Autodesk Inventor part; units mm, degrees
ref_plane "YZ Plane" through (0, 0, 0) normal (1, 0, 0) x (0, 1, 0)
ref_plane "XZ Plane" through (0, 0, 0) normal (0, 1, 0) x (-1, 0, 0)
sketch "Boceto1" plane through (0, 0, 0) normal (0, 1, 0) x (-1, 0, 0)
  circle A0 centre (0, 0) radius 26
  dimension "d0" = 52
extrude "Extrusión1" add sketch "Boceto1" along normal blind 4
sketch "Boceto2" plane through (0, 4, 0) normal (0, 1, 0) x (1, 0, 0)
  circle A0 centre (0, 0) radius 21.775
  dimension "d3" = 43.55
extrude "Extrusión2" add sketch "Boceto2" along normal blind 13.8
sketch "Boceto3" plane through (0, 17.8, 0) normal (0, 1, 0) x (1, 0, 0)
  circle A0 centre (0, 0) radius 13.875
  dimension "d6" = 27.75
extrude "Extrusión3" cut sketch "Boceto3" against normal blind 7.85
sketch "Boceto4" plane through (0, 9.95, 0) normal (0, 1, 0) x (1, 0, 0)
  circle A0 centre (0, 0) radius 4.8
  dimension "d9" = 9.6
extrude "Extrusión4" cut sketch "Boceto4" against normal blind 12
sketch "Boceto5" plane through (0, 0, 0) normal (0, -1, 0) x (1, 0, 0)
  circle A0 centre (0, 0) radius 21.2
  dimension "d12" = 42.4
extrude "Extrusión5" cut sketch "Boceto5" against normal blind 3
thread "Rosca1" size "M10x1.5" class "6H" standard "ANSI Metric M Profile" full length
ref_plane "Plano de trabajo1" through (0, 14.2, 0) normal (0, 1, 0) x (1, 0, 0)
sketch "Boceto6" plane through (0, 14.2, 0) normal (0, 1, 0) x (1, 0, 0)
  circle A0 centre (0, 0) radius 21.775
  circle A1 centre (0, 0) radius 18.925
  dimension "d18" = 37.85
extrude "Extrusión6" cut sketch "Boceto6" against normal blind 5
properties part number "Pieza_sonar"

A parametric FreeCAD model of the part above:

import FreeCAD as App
import Part
import Sketcher

V = App.Vector

doc = App.newDocument("Part")
body = doc.addObject("PartDesign::Body", "Body")

# Sketch on XZ plane
sketch1 = body.newObject("Sketcher::SketchObject", "Sketch")
sketch1.AttachmentSupport = (doc.getObject("XZ_Plane"), [""])
sketch1.MapMode = "FlatFace"
sketch1.addGeometry(Part.Circle(V(0, 0, 0), V(0, 0, 1), 26), False)
sketch1.addConstraint([
    Sketcher.Constraint("Coincident", 0, 3, -1, 1),
    Sketcher.Constraint("Diameter", 0, 52.0),
])
pad1 = body.newObject("PartDesign::Pad", "Pad")
pad1.Profile = sketch1
pad1.Length = 4
pad1.Reversed = True

# Sketch on XZ plane
sketch2 = body.newObject("Sketcher::SketchObject", "Sketch001")
sketch2.AttachmentSupport = (doc.getObject("XZ_Plane"), [""])
sketch2.MapMode = "FlatFace"
sketch2.AttachmentOffset = App.Placement(V(0, 0, -4), App.Rotation())
sketch2.addGeometry(Part.Circle(V(0, 0, 0), V(0, 0, 1), 22), False)
sketch2.addConstraint([
    Sketcher.Constraint("Coincident", 0, 3, -1, 1),
    Sketcher.Constraint("Diameter", 0, 43.55),
])
pad2 = body.newObject("PartDesign::Pad", "Pad001")
pad2.Profile = sketch2
pad2.Length = 13.8
pad2.Reversed = True

# Sketch on XZ plane
sketch3 = body.newObject("Sketcher::SketchObject", "Sketch002")
sketch3.AttachmentSupport = (doc.getObject("XZ_Plane"), [""])
sketch3.MapMode = "FlatFace"
sketch3.AttachmentOffset = App.Placement(V(0, 0, -17.8), App.Rotation())
sketch3.addGeometry(Part.Circle(V(0, 0, 0), V(0, 0, 1), 14), False)
sketch3.addConstraint([
    Sketcher.Constraint("Coincident", 0, 3, -1, 1),
    Sketcher.Constraint("Diameter", 0, 27.75),
])
pocket1 = body.newObject("PartDesign::Pocket", "Pocket")
pocket1.Profile = sketch3
pocket1.Length = 7.85
pocket1.Reversed = True

# Sketch on XZ plane
sketch4 = body.newObject("Sketcher::SketchObject", "Sketch003")
sketch4.AttachmentSupport = (doc.getObject("XZ_Plane"), [""])
sketch4.MapMode = "FlatFace"
sketch4.AttachmentOffset = App.Placement(V(0, 0, -9.95), App.Rotation())
sketch4.addGeometry(Part.Circle(V(0, 0, 0), V(0, 0, 1), 4.8), False)
sketch4.addConstraint([
    Sketcher.Constraint("Coincident", 0, 3, -1, 1),
    Sketcher.Constraint("Diameter", 0, 9.6),
])
pocket2 = body.newObject("PartDesign::Pocket", "Pocket001")
pocket2.Profile = sketch4
pocket2.Length = 12
pocket2.Reversed = True

# Sketch on XZ plane
sketch5 = body.newObject("Sketcher::SketchObject", "Sketch004")
sketch5.AttachmentSupport = (doc.getObject("XZ_Plane"), [""])
sketch5.MapMode = "FlatFace"
sketch5.addGeometry(Part.Circle(V(0, 0, 0), V(0, 0, 1), 21), False)
sketch5.addConstraint([
    Sketcher.Constraint("Coincident", 0, 3, -1, 1),
    Sketcher.Constraint("Diameter", 0, 42.4),
])
pocket3 = body.newObject("PartDesign::Pocket", "Pocket002")
pocket3.Profile = sketch5
pocket3.Length = 3

# Sketch on XZ plane
sketch6 = body.newObject("Sketcher::SketchObject", "Sketch005")
sketch6.AttachmentSupport = (doc.getObject("XZ_Plane"), [""])
sketch6.MapMode = "FlatFace"
sketch6.AttachmentOffset = App.Placement(V(0, 0, -14.2), App.Rotation())
sketch6.addGeometry([
    Part.Circle(V(0, 0, 0), V(0, 0, 1), 22),
    Part.Circle(V(0, 0, 0), V(0, 0, 1), 19),
], False)
sketch6.addConstraint([
    Sketcher.Constraint("Coincident", 0, 3, -1, 1),
    Sketcher.Constraint("Coincident", 1, 3, -1, 1),
    Sketcher.Constraint("Diameter", 1, 37.85),
    Sketcher.Constraint("Diameter", 0, 43.55),
])
pocket4 = body.newObject("PartDesign::Pocket", "Pocket003")
pocket4.Profile = sketch6
pocket4.Length = 5
pocket4.Reversed = True

doc.recompute()
